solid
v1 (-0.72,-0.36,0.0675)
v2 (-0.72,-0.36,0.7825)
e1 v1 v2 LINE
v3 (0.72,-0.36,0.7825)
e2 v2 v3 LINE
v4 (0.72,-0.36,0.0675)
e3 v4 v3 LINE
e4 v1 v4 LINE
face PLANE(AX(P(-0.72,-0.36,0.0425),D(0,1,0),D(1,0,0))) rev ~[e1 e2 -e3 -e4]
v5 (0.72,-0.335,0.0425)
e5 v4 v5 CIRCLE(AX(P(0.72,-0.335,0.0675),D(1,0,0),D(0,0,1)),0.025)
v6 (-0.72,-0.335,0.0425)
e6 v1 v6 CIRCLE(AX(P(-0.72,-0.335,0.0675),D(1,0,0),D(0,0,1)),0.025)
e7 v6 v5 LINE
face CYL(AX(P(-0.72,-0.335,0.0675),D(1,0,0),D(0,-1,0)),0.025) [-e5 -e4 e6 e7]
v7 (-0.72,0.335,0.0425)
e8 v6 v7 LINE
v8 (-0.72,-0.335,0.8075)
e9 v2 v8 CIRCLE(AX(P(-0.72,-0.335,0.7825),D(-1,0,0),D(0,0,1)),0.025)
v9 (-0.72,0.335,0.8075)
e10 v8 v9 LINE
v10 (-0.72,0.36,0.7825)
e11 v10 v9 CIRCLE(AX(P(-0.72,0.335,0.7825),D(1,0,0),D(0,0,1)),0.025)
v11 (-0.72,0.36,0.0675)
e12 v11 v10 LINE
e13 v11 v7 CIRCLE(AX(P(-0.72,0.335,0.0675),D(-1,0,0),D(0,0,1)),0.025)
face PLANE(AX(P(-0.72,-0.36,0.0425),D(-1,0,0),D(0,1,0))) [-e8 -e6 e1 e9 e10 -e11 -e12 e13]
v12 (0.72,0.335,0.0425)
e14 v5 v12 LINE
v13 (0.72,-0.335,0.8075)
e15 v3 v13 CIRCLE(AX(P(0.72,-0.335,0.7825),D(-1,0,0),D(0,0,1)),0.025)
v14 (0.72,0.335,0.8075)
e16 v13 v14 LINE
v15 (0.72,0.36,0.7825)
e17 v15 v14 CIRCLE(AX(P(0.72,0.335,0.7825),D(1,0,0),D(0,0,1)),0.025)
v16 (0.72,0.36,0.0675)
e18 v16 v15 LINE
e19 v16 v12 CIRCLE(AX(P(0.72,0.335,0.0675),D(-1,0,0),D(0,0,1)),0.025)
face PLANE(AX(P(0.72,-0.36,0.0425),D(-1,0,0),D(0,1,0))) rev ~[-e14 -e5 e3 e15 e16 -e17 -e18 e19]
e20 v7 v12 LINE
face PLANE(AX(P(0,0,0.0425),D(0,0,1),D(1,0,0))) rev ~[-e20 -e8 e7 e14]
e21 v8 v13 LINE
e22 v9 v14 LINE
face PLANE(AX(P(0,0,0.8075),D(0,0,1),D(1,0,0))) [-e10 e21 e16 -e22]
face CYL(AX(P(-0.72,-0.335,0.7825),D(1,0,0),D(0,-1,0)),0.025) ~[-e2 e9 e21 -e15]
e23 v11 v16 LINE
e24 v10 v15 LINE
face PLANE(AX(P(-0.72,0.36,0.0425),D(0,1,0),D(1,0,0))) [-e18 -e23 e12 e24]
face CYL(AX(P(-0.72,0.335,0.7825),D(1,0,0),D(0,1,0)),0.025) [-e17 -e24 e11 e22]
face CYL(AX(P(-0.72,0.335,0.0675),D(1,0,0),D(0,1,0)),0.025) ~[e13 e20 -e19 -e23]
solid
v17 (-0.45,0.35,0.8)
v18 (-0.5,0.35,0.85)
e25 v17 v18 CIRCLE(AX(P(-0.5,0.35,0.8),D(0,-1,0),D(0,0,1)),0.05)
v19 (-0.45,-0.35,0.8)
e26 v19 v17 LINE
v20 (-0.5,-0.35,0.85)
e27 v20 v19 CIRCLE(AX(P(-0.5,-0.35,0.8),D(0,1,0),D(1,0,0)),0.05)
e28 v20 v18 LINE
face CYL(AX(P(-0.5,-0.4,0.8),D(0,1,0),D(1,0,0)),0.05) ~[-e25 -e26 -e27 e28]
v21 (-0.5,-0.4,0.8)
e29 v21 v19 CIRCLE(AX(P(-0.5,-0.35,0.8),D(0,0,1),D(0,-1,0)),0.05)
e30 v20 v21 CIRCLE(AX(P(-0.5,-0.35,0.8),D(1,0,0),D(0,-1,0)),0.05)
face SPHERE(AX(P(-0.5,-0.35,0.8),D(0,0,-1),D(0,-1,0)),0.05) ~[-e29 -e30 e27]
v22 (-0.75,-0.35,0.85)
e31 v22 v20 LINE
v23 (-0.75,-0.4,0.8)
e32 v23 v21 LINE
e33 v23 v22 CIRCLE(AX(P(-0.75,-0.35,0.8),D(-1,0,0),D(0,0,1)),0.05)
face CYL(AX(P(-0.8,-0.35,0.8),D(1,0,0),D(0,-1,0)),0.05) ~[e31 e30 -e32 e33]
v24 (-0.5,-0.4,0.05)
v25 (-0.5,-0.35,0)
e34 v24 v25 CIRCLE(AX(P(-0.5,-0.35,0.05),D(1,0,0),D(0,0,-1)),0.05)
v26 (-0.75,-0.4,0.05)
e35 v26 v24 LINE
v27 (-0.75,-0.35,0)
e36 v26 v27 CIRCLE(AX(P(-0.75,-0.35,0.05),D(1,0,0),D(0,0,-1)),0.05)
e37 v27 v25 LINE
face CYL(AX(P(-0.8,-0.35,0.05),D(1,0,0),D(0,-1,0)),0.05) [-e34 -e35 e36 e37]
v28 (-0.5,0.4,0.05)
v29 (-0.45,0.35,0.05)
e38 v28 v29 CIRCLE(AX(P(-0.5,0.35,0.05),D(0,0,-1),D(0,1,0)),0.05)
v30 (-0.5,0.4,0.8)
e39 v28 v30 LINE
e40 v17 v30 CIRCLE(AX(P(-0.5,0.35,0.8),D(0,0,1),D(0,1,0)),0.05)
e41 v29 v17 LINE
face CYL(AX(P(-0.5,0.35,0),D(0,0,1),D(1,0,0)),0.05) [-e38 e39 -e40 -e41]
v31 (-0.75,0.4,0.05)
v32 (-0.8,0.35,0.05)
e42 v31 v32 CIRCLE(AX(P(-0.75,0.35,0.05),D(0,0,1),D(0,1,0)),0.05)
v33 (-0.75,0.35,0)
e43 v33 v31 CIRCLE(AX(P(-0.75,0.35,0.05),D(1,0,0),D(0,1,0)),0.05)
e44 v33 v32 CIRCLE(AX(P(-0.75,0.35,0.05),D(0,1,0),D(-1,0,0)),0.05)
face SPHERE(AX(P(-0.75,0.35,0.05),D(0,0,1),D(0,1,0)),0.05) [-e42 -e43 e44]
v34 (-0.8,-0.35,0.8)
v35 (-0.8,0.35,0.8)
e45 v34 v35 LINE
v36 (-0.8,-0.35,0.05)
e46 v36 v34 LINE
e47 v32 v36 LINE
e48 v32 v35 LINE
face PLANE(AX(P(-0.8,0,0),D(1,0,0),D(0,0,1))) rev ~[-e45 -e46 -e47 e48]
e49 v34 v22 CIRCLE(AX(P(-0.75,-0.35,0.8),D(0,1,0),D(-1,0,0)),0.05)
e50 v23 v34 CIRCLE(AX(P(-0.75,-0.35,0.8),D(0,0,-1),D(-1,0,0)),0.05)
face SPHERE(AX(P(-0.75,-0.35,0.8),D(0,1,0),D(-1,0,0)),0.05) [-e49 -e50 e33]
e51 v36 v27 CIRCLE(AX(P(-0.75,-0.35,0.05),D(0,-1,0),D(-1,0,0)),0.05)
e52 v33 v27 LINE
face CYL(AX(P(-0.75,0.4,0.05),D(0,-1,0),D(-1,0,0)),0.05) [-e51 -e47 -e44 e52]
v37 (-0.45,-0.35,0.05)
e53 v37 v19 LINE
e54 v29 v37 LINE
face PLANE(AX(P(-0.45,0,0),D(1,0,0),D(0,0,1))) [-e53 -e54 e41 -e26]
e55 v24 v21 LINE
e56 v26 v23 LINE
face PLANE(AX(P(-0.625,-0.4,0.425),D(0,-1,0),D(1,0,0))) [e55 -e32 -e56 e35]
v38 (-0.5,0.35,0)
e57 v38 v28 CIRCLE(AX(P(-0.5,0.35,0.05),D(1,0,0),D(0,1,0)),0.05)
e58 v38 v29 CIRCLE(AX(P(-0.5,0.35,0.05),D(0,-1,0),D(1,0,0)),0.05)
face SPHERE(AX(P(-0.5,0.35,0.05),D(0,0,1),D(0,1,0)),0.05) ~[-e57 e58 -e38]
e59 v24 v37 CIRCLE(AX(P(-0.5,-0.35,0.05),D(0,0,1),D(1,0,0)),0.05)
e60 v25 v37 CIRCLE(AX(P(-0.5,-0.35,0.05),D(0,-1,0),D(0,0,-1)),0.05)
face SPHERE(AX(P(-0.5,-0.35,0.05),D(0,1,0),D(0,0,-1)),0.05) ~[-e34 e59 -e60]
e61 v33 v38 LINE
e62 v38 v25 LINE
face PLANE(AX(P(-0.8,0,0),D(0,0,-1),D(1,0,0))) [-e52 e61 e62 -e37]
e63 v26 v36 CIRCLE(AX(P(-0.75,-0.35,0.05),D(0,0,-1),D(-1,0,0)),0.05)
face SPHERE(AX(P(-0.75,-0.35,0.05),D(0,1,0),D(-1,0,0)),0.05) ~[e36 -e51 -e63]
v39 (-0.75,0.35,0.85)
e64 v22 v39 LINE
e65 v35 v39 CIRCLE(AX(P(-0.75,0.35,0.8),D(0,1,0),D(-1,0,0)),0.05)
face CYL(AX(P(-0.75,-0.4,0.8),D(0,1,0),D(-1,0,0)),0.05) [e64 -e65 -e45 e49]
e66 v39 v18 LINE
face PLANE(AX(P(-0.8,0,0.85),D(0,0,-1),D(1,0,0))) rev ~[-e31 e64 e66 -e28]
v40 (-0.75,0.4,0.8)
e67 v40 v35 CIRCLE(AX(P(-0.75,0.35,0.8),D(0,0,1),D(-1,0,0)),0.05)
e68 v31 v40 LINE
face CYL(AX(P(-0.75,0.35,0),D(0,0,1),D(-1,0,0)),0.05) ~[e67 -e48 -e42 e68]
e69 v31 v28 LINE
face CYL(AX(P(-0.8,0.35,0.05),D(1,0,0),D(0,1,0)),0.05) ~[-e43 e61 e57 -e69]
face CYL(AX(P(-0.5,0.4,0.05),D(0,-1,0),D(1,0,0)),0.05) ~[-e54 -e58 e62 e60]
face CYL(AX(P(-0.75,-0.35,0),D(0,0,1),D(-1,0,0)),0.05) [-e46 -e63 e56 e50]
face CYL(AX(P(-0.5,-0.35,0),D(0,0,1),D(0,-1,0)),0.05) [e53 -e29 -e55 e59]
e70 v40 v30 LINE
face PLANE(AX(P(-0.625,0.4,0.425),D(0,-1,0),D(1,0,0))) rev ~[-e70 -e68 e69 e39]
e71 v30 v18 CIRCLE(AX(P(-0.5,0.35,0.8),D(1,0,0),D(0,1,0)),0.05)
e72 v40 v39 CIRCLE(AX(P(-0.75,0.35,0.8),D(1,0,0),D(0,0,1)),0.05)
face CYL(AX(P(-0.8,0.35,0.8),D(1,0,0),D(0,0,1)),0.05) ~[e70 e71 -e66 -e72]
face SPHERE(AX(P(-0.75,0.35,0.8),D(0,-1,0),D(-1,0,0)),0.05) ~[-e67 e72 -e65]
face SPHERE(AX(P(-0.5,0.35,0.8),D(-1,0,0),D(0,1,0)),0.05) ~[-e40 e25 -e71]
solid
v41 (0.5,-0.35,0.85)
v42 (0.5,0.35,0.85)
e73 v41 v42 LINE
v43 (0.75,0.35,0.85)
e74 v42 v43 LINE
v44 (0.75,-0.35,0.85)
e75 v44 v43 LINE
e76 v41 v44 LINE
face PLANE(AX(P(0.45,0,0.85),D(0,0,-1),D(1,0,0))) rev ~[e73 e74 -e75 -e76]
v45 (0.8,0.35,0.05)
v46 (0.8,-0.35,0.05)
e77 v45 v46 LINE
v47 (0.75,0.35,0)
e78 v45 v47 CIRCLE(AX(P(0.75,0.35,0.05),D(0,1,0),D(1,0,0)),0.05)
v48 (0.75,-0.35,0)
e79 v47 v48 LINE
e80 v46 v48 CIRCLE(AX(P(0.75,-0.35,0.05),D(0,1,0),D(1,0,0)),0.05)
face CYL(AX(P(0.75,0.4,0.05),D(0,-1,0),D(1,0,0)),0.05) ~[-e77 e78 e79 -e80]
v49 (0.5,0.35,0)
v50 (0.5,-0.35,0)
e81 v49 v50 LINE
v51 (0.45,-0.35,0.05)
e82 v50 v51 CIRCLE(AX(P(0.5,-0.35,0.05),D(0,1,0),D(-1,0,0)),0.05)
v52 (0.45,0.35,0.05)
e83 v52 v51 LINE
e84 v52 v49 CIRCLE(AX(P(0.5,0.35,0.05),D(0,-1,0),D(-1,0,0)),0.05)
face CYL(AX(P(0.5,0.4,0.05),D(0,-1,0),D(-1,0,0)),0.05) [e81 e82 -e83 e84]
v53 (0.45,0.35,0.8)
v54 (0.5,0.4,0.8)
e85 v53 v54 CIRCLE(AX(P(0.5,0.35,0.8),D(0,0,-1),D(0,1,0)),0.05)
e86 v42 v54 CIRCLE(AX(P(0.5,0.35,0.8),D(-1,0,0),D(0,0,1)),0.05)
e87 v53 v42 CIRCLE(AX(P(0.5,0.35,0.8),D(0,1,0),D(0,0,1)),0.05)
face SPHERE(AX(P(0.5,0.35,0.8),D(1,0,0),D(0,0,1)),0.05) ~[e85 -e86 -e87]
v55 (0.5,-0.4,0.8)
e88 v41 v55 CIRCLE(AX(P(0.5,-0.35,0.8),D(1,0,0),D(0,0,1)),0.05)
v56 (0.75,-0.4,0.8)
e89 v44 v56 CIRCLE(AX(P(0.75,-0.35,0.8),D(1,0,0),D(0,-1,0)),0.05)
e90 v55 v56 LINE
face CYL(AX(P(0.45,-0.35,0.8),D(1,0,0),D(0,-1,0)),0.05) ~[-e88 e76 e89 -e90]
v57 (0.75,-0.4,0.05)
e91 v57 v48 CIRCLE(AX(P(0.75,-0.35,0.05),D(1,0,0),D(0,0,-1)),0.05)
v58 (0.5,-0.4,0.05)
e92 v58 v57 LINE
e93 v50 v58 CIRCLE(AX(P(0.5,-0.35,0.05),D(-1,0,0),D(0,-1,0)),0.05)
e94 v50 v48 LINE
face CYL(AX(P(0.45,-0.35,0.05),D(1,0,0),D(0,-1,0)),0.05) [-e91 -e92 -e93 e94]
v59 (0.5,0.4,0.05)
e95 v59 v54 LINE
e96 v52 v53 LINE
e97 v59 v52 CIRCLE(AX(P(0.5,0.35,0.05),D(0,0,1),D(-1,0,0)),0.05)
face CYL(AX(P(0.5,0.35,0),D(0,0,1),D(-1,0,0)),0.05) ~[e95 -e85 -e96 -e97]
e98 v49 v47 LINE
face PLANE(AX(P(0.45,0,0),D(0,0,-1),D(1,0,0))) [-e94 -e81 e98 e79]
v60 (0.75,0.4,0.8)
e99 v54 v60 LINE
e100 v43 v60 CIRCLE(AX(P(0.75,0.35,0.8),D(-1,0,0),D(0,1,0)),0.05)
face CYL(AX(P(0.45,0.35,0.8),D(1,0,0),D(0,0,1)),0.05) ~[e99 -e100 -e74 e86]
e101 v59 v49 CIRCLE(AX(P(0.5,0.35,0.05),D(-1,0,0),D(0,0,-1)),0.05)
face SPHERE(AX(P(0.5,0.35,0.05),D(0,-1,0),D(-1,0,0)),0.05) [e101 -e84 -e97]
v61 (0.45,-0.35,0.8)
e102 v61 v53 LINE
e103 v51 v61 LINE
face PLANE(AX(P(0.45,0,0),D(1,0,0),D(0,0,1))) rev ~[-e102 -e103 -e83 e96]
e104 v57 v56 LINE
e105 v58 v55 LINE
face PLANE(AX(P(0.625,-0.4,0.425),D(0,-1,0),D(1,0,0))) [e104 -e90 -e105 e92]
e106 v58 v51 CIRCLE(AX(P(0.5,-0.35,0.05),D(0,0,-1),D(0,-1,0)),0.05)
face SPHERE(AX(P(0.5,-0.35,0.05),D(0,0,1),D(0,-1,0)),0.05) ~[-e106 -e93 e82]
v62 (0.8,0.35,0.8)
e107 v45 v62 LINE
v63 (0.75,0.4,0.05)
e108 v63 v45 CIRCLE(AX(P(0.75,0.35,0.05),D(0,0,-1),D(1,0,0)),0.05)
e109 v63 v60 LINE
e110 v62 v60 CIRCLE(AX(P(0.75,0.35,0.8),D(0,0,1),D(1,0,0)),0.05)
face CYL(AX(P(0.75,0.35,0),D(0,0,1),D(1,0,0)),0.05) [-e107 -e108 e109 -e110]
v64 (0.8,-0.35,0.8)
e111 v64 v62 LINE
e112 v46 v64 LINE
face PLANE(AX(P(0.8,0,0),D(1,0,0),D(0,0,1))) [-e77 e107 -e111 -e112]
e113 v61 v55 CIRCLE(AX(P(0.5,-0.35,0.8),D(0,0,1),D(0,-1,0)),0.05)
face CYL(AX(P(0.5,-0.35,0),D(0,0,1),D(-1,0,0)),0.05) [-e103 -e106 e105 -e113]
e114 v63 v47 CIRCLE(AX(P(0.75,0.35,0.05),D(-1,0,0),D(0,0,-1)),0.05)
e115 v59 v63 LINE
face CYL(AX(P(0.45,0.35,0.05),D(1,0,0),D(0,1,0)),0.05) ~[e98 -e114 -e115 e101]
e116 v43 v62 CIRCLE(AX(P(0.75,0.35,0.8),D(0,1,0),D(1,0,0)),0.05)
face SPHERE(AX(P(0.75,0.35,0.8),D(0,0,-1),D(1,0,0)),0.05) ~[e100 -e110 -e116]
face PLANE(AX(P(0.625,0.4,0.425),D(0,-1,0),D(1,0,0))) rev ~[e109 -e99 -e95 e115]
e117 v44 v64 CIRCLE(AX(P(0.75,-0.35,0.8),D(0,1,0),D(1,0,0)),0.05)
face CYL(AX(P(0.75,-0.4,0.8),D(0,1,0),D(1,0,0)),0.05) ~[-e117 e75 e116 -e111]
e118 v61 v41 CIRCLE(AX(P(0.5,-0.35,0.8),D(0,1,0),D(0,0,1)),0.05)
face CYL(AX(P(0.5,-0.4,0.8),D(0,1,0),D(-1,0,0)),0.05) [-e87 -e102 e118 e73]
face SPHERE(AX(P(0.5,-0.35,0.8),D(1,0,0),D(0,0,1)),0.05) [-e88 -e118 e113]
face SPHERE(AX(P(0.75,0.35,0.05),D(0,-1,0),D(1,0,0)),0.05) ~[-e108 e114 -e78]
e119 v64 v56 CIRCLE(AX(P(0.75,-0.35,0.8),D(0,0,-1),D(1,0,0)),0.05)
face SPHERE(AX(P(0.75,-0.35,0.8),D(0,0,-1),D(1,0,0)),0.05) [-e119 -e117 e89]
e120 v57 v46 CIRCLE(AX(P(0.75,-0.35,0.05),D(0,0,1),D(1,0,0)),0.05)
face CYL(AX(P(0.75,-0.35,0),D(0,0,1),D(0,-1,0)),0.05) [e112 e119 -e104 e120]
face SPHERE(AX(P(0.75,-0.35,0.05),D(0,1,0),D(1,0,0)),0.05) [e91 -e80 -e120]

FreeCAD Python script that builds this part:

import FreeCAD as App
import Part
import Sketcher
Q = App.Units.Quantity


def edges_at(feature, points):
    """Names of the edges that pass closest to the given points."""
    edges = feature.Shape.Edges
    near = lambda p: min(range(len(edges)), key=lambda i: edges[i].distToShape(Part.Vertex(*p))[0])
    return sorted({f"Edge{near(p) + 1}" for p in points})

doc = App.newDocument("Part")
body = doc.addObject("PartDesign::Body", "Body")

sketch1 = body.newObject("Sketcher::SketchObject", "Sketch")
sketch1.AttachmentSupport = (doc.getObject("XY_Plane"), [""])
sketch1.MapMode = "FlatFace"
sketch1.AttachmentOffset = App.Placement(App.Vector(0, 0, 0.0425), App.Rotation())
sketch1.addGeometry(Part.LineSegment(App.Vector(-0.7, 0.4, 0), App.Vector(-0.7, -0.4, 0)), False)
sketch1.addGeometry(Part.LineSegment(App.Vector(-0.7, -0.4, 0), App.Vector(0.7, -0.4, 0)), False)
sketch1.addGeometry(Part.LineSegment(App.Vector(0.7, -0.4, 0), App.Vector(0.7, 0.4, 0)), False)
sketch1.addGeometry(Part.LineSegment(App.Vector(0.7, 0.4, 0), App.Vector(-0.7, 0.4, 0)), False)
sketch1.addConstraint(Sketcher.Constraint("Coincident", 0, 2, 1, 1))
sketch1.addConstraint(Sketcher.Constraint("Coincident", 1, 2, 2, 1))
sketch1.addConstraint(Sketcher.Constraint("Coincident", 2, 2, 3, 1))
sketch1.addConstraint(Sketcher.Constraint("Coincident", 3, 2, 0, 1))
sketch1.addConstraint(Sketcher.Constraint("Vertical", 0))
sketch1.addConstraint(Sketcher.Constraint("Horizontal", 1))
sketch1.addConstraint(Sketcher.Constraint("Vertical", 2))
sketch1.addConstraint(Sketcher.Constraint("Horizontal", 3))
sketch1.addConstraint(Sketcher.Constraint("Symmetric", 0, 2, 2, 2, -1, 1))
sketch1.addConstraint(Sketcher.Constraint("DistanceX", 1, 1, 1, 2, Q("1.44 mm")))
sketch1.addConstraint(Sketcher.Constraint("DistanceY", 0, 2, 0, 1, Q("0.72 mm")))
pad1 = body.newObject("PartDesign::Pad", "Pad")
pad1.Profile = sketch1
pad1.Length = 0.765
doc.recompute()

fillet = body.newObject("PartDesign::Fillet", "Fillet")
fillet.Base = (pad1, edges_at(pad1, [
    (0, -0.36, 0.807),
    (0, 0.36, 0.807),
    (0, -0.36, 0.043),
    (0, 0.36, 0.043),
]))
fillet.Radius = 0.025
body2 = doc.addObject("PartDesign::Body", "Body001")

sketch2 = body2.newObject("Sketcher::SketchObject", "Sketch001")
sketch2.AttachmentSupport = (doc.getObject("XZ_Plane001"), [""])
sketch2.MapMode = "FlatFace"
sketch2.addGeometry(Part.LineSegment(App.Vector(-0.8, 0.85, 0), App.Vector(-0.8, 0, 0)), False)
sketch2.addGeometry(Part.LineSegment(App.Vector(-0.8, 0, 0), App.Vector(-0.45, 0, 0)), False)
sketch2.addGeometry(Part.LineSegment(App.Vector(-0.45, 0, 0), App.Vector(-0.45, 0.85, 0)), False)
sketch2.addGeometry(Part.LineSegment(App.Vector(-0.45, 0.85, 0), App.Vector(-0.8, 0.85, 0)), False)
sketch2.addConstraint(Sketcher.Constraint("Coincident", 0, 2, 1, 1))
sketch2.addConstraint(Sketcher.Constraint("Coincident", 1, 2, 2, 1))
sketch2.addConstraint(Sketcher.Constraint("Coincident", 2, 2, 3, 1))
sketch2.addConstraint(Sketcher.Constraint("Coincident", 3, 2, 0, 1))
sketch2.addConstraint(Sketcher.Constraint("Vertical", 0))
sketch2.addConstraint(Sketcher.Constraint("Horizontal", 1))
sketch2.addConstraint(Sketcher.Constraint("Vertical", 2))
sketch2.addConstraint(Sketcher.Constraint("Horizontal", 3))
sketch2.addConstraint(Sketcher.Constraint("PointOnObject", 0, 2, -1))
sketch2.addConstraint(Sketcher.Constraint("DistanceX", 1, 1, 1, 2, Q("0.35 mm")))
sketch2.addConstraint(Sketcher.Constraint("DistanceY", 0, 2, 0, 1, Q("0.85 mm")))
sketch2.addConstraint(Sketcher.Constraint("DistanceX", 0, 2, -1, 1, Q("0.8 mm")))
pad2 = body2.newObject("PartDesign::Pad", "Pad001")
pad2.Profile = sketch2
pad2.Length = 0.8
pad2.Midplane = True
doc.recompute()

fillet2 = body2.newObject("PartDesign::Fillet", "Fillet001")
fillet2.Base = (pad2, ["Edge1"])
fillet2.UseAllEdges = True
fillet2.Radius = 0.05
body3 = doc.addObject("PartDesign::Body", "Body002")

sketch3 = body3.newObject("Sketcher::SketchObject", "Sketch002")
sketch3.AttachmentSupport = (doc.getObject("XZ_Plane002"), [""])
sketch3.MapMode = "FlatFace"
sketch3.addGeometry(Part.LineSegment(App.Vector(0.45, 0.85, 0), App.Vector(0.45, 0, 0)), False)
sketch3.addGeometry(Part.LineSegment(App.Vector(0.45, 0, 0), App.Vector(0.8, 0, 0)), False)
sketch3.addGeometry(Part.LineSegment(App.Vector(0.8, 0, 0), App.Vector(0.8, 0.85, 0)), False)
sketch3.addGeometry(Part.LineSegment(App.Vector(0.8, 0.85, 0), App.Vector(0.45, 0.85, 0)), False)
sketch3.addConstraint(Sketcher.Constraint("Coincident", 0, 2, 1, 1))
sketch3.addConstraint(Sketcher.Constraint("Coincident", 1, 2, 2, 1))
sketch3.addConstraint(Sketcher.Constraint("Coincident", 2, 2, 3, 1))
sketch3.addConstraint(Sketcher.Constraint("Coincident", 3, 2, 0, 1))
sketch3.addConstraint(Sketcher.Constraint("Vertical", 0))
sketch3.addConstraint(Sketcher.Constraint("Horizontal", 1))
sketch3.addConstraint(Sketcher.Constraint("Vertical", 2))
sketch3.addConstraint(Sketcher.Constraint("Horizontal", 3))
sketch3.addConstraint(Sketcher.Constraint("PointOnObject", 0, 2, -1))
sketch3.addConstraint(Sketcher.Constraint("DistanceX", 1, 1, 1, 2, Q("0.35 mm")))
sketch3.addConstraint(Sketcher.Constraint("DistanceY", 0, 2, 0, 1, Q("0.85 mm")))
sketch3.addConstraint(Sketcher.Constraint("DistanceX", -1, 1, 1, 2, Q("0.8 mm")))
pad3 = body3.newObject("PartDesign::Pad", "Pad002")
pad3.Profile = sketch3
pad3.Length = 0.8
pad3.Midplane = True
doc.recompute()

fillet3 = body3.newObject("PartDesign::Fillet", "Fillet002")
fillet3.Base = (pad3, ["Edge1"])
fillet3.UseAllEdges = True
fillet3.Radius = 0.05

doc.recompute()
